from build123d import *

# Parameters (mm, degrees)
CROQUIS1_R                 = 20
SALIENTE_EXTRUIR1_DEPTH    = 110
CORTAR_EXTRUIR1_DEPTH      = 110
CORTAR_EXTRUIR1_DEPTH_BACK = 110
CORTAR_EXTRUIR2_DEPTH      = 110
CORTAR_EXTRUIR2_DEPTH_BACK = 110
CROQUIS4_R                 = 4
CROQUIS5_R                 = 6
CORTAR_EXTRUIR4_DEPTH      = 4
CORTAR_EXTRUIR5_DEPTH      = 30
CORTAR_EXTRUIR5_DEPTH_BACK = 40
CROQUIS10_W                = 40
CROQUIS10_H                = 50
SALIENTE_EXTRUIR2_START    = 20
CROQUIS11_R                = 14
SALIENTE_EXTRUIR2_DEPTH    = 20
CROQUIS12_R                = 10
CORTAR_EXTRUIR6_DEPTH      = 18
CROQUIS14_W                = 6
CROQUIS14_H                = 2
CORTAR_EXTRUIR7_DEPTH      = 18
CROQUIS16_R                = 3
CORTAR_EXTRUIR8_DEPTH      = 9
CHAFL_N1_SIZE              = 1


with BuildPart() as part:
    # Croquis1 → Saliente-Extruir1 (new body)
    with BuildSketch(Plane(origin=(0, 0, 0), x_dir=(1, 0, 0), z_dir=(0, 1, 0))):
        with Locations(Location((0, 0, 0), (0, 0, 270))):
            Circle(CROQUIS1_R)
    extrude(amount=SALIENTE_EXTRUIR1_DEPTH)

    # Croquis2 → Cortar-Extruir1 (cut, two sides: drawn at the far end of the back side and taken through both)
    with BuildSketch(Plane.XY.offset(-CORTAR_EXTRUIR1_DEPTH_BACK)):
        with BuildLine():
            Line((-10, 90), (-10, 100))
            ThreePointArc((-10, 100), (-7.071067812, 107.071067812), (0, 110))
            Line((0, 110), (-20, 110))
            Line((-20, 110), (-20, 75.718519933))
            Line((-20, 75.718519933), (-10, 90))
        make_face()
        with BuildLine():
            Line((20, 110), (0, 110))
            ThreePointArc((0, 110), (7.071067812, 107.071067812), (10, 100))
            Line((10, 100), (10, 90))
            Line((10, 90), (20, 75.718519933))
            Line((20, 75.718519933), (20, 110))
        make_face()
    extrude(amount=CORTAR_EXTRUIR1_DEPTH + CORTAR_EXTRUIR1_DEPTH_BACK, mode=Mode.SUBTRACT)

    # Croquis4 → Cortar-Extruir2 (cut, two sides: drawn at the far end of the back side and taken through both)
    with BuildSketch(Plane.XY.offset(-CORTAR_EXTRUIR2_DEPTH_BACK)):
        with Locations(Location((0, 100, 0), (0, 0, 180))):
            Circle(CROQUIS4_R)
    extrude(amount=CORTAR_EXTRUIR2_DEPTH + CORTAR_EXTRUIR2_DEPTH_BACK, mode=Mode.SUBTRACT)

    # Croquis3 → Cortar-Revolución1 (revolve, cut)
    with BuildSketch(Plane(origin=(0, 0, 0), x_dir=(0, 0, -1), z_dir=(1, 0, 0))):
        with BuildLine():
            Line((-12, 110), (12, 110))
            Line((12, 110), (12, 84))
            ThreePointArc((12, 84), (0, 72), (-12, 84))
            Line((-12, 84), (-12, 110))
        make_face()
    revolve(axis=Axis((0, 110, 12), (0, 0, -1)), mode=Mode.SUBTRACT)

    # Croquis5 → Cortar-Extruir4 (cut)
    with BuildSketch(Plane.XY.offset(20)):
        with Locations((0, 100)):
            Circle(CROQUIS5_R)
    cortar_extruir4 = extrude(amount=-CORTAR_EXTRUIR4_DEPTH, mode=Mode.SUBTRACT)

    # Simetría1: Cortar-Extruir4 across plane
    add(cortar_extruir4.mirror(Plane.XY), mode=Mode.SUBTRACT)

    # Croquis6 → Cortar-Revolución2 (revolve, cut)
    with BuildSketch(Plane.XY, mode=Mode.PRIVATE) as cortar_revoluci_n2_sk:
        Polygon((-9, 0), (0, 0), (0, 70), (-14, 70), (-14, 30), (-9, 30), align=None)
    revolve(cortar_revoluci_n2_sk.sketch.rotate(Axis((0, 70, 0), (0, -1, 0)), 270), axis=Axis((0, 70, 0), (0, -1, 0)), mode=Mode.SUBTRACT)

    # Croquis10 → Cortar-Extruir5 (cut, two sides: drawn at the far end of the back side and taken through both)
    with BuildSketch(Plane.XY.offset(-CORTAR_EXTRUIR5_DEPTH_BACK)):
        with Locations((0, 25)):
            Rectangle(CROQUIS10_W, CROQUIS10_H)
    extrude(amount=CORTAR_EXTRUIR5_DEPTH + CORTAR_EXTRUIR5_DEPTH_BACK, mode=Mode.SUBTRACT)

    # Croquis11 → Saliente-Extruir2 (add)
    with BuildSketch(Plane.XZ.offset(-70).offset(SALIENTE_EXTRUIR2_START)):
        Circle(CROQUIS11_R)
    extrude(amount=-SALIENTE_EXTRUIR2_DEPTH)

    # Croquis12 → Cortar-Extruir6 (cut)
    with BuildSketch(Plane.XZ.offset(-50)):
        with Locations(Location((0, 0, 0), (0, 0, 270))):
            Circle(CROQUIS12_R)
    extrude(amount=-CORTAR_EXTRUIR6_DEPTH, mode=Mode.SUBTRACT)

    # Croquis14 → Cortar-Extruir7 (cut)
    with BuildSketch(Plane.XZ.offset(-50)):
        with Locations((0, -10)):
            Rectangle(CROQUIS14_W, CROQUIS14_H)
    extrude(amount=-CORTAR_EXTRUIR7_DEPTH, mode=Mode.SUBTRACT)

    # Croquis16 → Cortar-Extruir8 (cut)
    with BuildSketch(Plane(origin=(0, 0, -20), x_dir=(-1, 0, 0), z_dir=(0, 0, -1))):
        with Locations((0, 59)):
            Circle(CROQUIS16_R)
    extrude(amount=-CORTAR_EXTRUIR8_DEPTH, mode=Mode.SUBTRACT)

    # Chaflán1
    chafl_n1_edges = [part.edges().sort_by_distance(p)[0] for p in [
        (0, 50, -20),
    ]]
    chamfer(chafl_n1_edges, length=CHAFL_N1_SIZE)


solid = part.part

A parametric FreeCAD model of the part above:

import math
import FreeCAD as App
import Part
import Sketcher
Q = App.Units.Quantity


def edges_at(feature, points):
    """Names of the edges that pass closest to the given points."""
    edges = feature.Shape.Edges
    near = lambda p: min(range(len(edges)), key=lambda i: edges[i].distToShape(Part.Vertex(*p))[0])
    return sorted({f"Edge{near(p) + 1}" for p in points})

doc = App.newDocument("Part")
body = doc.addObject("PartDesign::Body", "Body")

sketch1 = body.newObject("Sketcher::SketchObject", "Sketch")
sketch1.AttachmentSupport = (doc.getObject("XZ_Plane"), [""])
sketch1.MapMode = "FlatFace"
sketch1.addGeometry(Part.Circle(App.Vector(0, 0, 0), App.Vector(0, 0, 1), 20), False)
sketch1.addConstraint(Sketcher.Constraint("Coincident", 0, 3, -1, 1))
sketch1.addConstraint(Sketcher.Constraint("Diameter", 0, Q("40 mm")))
pad1 = body.newObject("PartDesign::Pad", "Pad")
pad1.Profile = sketch1
pad1.Length = 110
pad1.Reversed = True

sketch2 = body.newObject("Sketcher::SketchObject", "Sketch001")
sketch2.AttachmentSupport = (doc.getObject("XY_Plane"), [""])
sketch2.MapMode = "FlatFace"
sketch2.addGeometry(Part.LineSegment(App.Vector(-10, 90, 0), App.Vector(-10, 100, 0)), False)
sketch2.addGeometry(Part.ArcOfCircle(Part.Circle(App.Vector(0, 100, 0), App.Vector(0, 0, 1), 10), math.radians(90), math.radians(180)), False)
sketch2.addGeometry(Part.LineSegment(App.Vector(0, 110, 0), App.Vector(-20, 110, 0)), False)
sketch2.addGeometry(Part.LineSegment(App.Vector(-20, 110, 0), App.Vector(-20, 76, 0)), False)
sketch2.addGeometry(Part.LineSegment(App.Vector(-20, 76, 0), App.Vector(-10, 90, 0)), False)
sketch2.addGeometry(Part.LineSegment(App.Vector(20, 110, 0), App.Vector(0, 110, 0)), False)
sketch2.addGeometry(Part.ArcOfCircle(Part.Circle(App.Vector(0, 100, 0), App.Vector(0, 0, 1), 10), math.radians(0), math.radians(90)), False)
sketch2.addGeometry(Part.LineSegment(App.Vector(10, 100, 0), App.Vector(10, 90, 0)), False)
sketch2.addGeometry(Part.LineSegment(App.Vector(10, 90, 0), App.Vector(20, 76, 0)), False)
sketch2.addGeometry(Part.LineSegment(App.Vector(20, 76, 0), App.Vector(20, 110, 0)), False)
sketch2.addConstraint(Sketcher.Constraint("Tangent", 0, 2, 1, 2))
sketch2.addConstraint(Sketcher.Constraint("Tangent", 1, 1, 2, 1))
sketch2.addConstraint(Sketcher.Constraint("Coincident", 2, 2, 3, 1))
sketch2.addConstraint(Sketcher.Constraint("Coincident", 3, 2, 4, 1))
sketch2.addConstraint(Sketcher.Constraint("Coincident", 4, 2, 0, 1))
sketch2.addConstraint(Sketcher.Constraint("Tangent", 5, 2, 6, 2))
sketch2.addConstraint(Sketcher.Constraint("Tangent", 6, 1, 7, 1))
sketch2.addConstraint(Sketcher.Constraint("Coincident", 7, 2, 8, 1))
sketch2.addConstraint(Sketcher.Constraint("Coincident", 8, 2, 9, 1))
sketch2.addConstraint(Sketcher.Constraint("Coincident", 9, 2, 5, 1))
sketch2.addConstraint(Sketcher.Constraint("Vertical", 0))
sketch2.addConstraint(Sketcher.Constraint("Horizontal", 2))
sketch2.addConstraint(Sketcher.Constraint("Vertical", 3))
sketch2.addConstraint(Sketcher.Constraint("Horizontal", 5))
sketch2.addConstraint(Sketcher.Constraint("Vertical", 7))
sketch2.addConstraint(Sketcher.Constraint("Vertical", 9))
sketch2.addConstraint(Sketcher.Constraint("Coincident", 6, 3, 1, 3))
sketch2.addConstraint(Sketcher.Constraint("Equal", 1, 6))
sketch2.addConstraint(Sketcher.Constraint("Symmetric", 4, 2, 7, 2, -2))
sketch2.addConstraint(Sketcher.Constraint("Symmetric", 3, 2, 8, 2, -2))
sketch2.addConstraint(Sketcher.Constraint("Radius", 1, Q("10 mm")))
sketch2.addConstraint(Sketcher.Constraint("DistanceX", 2, 2, 2, 1, Q("20 mm")))
sketch2.addConstraint(Sketcher.Constraint("DistanceY", 0, 1, 0, 2, Q("10 mm")))
sketch2.addConstraint(Sketcher.Constraint("Angle", 4, Q("55 deg")))
sketch2.addConstraint(Sketcher.Constraint("DistanceY", -1, 1, 1, 3, Q("100 mm")))
pocket1 = body.newObject("PartDesign::Pocket", "Pocket")
pocket1.Profile = sketch2
pocket1.Type = "ThroughAll"
pocket1.Midplane = True

sketch3 = body.newObject("Sketcher::SketchObject", "Sketch002")
sketch3.AttachmentSupport = (doc.getObject("XY_Plane"), [""])
sketch3.MapMode = "FlatFace"
sketch3.addGeometry(Part.Circle(App.Vector(0, 100, 0), App.Vector(0, 0, 1), 4), False)
sketch3.addConstraint(Sketcher.Constraint("PointOnObject", 0, 3, -2))
sketch3.addConstraint(Sketcher.Constraint("Diameter", 0, Q("8 mm")))
sketch3.addConstraint(Sketcher.Constraint("DistanceY", -1, 1, 0, 3, Q("100 mm")))
pocket2 = body.newObject("PartDesign::Pocket", "Pocket001")
pocket2.Profile = sketch3
pocket2.Type = "ThroughAll"
pocket2.Midplane = True

sketch4 = body.newObject("Sketcher::SketchObject", "Sketch003")
sketch4.AttachmentSupport = (doc.getObject("YZ_Plane"), [""])
sketch4.MapMode = "FlatFace"
sketch4.addGeometry(Part.LineSegment(App.Vector(110, -12, 0), App.Vector(110, 12, 0)), False)
sketch4.addGeometry(Part.LineSegment(App.Vector(110, 12, 0), App.Vector(84, 12, 0)), False)
sketch4.addGeometry(Part.ArcOfCircle(Part.Circle(App.Vector(84, 0, 0), App.Vector(0, 0, 1), 12), math.radians(90), math.radians(270)), False)
sketch4.addGeometry(Part.LineSegment(App.Vector(84, -12, 0), App.Vector(110, -12, 0)), False)
sketch4.addGeometry(Part.LineSegment(App.Vector(110, 12, 0), App.Vector(110, -12, 0)), True)
sketch4.addConstraint(Sketcher.Constraint("Coincident", 0, 2, 1, 1))
sketch4.addConstraint(Sketcher.Constraint("Tangent", 1, 2, 2, 1))
sketch4.addConstraint(Sketcher.Constraint("Tangent", 2, 2, 3, 1))
sketch4.addConstraint(Sketcher.Constraint("Coincident", 3, 2, 0, 1))
sketch4.addConstraint(Sketcher.Constraint("Vertical", 0))
sketch4.addConstraint(Sketcher.Constraint("Horizontal", 1))
sketch4.addConstraint(Sketcher.Constraint("Horizontal", 3))
sketch4.addConstraint(Sketcher.Constraint("Vertical", 4))
sketch4.addConstraint(Sketcher.Constraint("Coincident", 4, 1, 0, 2))
sketch4.addConstraint(Sketcher.Constraint("PointOnObject", 2, 3, -1))
sketch4.addConstraint(Sketcher.Constraint("Horizontal", 2, 2, 4, 2))
sketch4.addConstraint(Sketcher.Constraint("Radius", 2, Q("12 mm")))
sketch4.addConstraint(Sketcher.Constraint("DistanceX", 1, 2, 1, 1, Q("26 mm")))
sketch4.addConstraint(Sketcher.Constraint("DistanceX", -1, 1, 2, 3, Q("84 mm")))
groove = body.newObject("PartDesign::Groove", "Groove")
groove.Profile = sketch4
groove.ReferenceAxis = (sketch4, ["Axis0"])
groove.Angle = 360

sketch5 = body.newObject("Sketcher::SketchObject", "Sketch004")
sketch5.AttachmentSupport = (doc.getObject("XY_Plane"), [""])
sketch5.MapMode = "FlatFace"
sketch5.AttachmentOffset = App.Placement(App.Vector(0, 0, 20), App.Rotation())
sketch5.addGeometry(Part.Circle(App.Vector(0, 100, 0), App.Vector(0, 0, 1), 6), False)
sketch5.addConstraint(Sketcher.Constraint("PointOnObject", 0, 3, -2))
sketch5.addConstraint(Sketcher.Constraint("Diameter", 0, Q("12 mm")))
sketch5.addConstraint(Sketcher.Constraint("DistanceY", -1, 1, 0, 3, Q("100 mm")))
pocket3 = body.newObject("PartDesign::Pocket", "Pocket002")
pocket3.Profile = sketch5
pocket3.Length = 4
doc.recompute()

mirrored = body.newObject("PartDesign::Mirrored", "Mirrored")
mirrored.Originals = [pocket3]
mirrored.MirrorPlane = (doc.getObject("XY_Plane"), [""])
body.Tip = mirrored

sketch6 = body.newObject("Sketcher::SketchObject", "Sketch005")
sketch6.AttachmentSupport = (doc.getObject("XY_Plane"), [""])
sketch6.MapMode = "FlatFace"
sketch6.addGeometry(Part.LineSegment(App.Vector(-9, 0, 0), App.Vector(0, 0, 0)), False)
sketch6.addGeometry(Part.LineSegment(App.Vector(0, 0, 0), App.Vector(0, 70, 0)), False)
sketch6.addGeometry(Part.LineSegment(App.Vector(0, 70, 0), App.Vector(-14, 70, 0)), False)
sketch6.addGeometry(Part.LineSegment(App.Vector(-14, 70, 0), App.Vector(-14, 30, 0)), False)
sketch6.addGeometry(Part.LineSegment(App.Vector(-14, 30, 0), App.Vector(-9, 30, 0)), False)
sketch6.addGeometry(Part.LineSegment(App.Vector(-9, 30, 0), App.Vector(-9, 0, 0)), False)
sketch6.addConstraint(Sketcher.Constraint("Coincident", 0, 2, 1, 1))
sketch6.addConstraint(Sketcher.Constraint("Coincident", 1, 2, 2, 1))
sketch6.addConstraint(Sketcher.Constraint("Coincident", 2, 2, 3, 1))
sketch6.addConstraint(Sketcher.Constraint("Coincident", 3, 2, 4, 1))
sketch6.addConstraint(Sketcher.Constraint("Coincident", 4, 2, 5, 1))
sketch6.addConstraint(Sketcher.Constraint("Coincident", 5, 2, 0, 1))
sketch6.addConstraint(Sketcher.Constraint("Horizontal", 0))
sketch6.addConstraint(Sketcher.Constraint("Vertical", 1))
sketch6.addConstraint(Sketcher.Constraint("Horizontal", 2))
sketch6.addConstraint(Sketcher.Constraint("Vertical", 3))
sketch6.addConstraint(Sketcher.Constraint("Horizontal", 4))
sketch6.addConstraint(Sketcher.Constraint("Vertical", 5))
sketch6.addConstraint(Sketcher.Constraint("Coincident", 0, 2, -1, 1))
sketch6.addConstraint(Sketcher.Constraint("DistanceX", 0, 1, 0, 2, Q("9 mm")))
sketch6.addConstraint(Sketcher.Constraint("DistanceX", 2, 2, 2, 1, Q("14 mm")))
sketch6.addConstraint(Sketcher.Constraint("DistanceY", 1, 1, 1, 2, Q("70 mm")))
sketch6.addConstraint(Sketcher.Constraint("DistanceY", 3, 2, 3, 1, Q("40 mm")))
groove2 = body.newObject("PartDesign::Groove", "Groove001")
groove2.Profile = sketch6
groove2.ReferenceAxis = (sketch6, ["V_Axis"])
groove2.Angle = 360

sketch7 = body.newObject("Sketcher::SketchObject", "Sketch006")
sketch7.AttachmentSupport = (doc.getObject("XY_Plane"), [""])
sketch7.MapMode = "FlatFace"
sketch7.addGeometry(Part.LineSegment(App.Vector(-20, 50, 0), App.Vector(-20, 0, 0)), False)
sketch7.addGeometry(Part.LineSegment(App.Vector(-20, 0, 0), App.Vector(20, 0, 0)), False)
sketch7.addGeometry(Part.LineSegment(App.Vector(20, 0, 0), App.Vector(20, 50, 0)), False)
sketch7.addGeometry(Part.LineSegment(App.Vector(20, 50, 0), App.Vector(-20, 50, 0)), False)
sketch7.addConstraint(Sketcher.Constraint("Coincident", 0, 2, 1, 1))
sketch7.addConstraint(Sketcher.Constraint("Coincident", 1, 2, 2, 1))
sketch7.addConstraint(Sketcher.Constraint("Coincident", 2, 2, 3, 1))
sketch7.addConstraint(Sketcher.Constraint("Coincident", 3, 2, 0, 1))
sketch7.addConstraint(Sketcher.Constraint("Vertical", 0))
sketch7.addConstraint(Sketcher.Constraint("Horizontal", 1))
sketch7.addConstraint(Sketcher.Constraint("Vertical", 2))
sketch7.addConstraint(Sketcher.Constraint("Horizontal", 3))
sketch7.addConstraint(Sketcher.Constraint("Symmetric", 0, 2, 1, 2, -1, 1))
sketch7.addConstraint(Sketcher.Constraint("DistanceX", 1, 1, 1, 2, Q("40 mm")))
sketch7.addConstraint(Sketcher.Constraint("DistanceY", 0, 2, 0, 1, Q("50 mm")))
pocket4 = body.newObject("PartDesign::Pocket", "Pocket003")
pocket4.Profile = sketch7
pocket4.Type = "ThroughAll"
pocket4.Midplane = True

sketch8 = body.newObject("Sketcher::SketchObject", "Sketch007")
sketch8.AttachmentSupport = (doc.getObject("XZ_Plane"), [""])
sketch8.MapMode = "FlatFace"
sketch8.AttachmentOffset = App.Placement(App.Vector(0, 0, -50), App.Rotation())
sketch8.addGeometry(Part.Circle(App.Vector(0, 0, 0), App.Vector(0, 0, 1), 14), False)
sketch8.addConstraint(Sketcher.Constraint("Coincident", 0, 3, -1, 1))
sketch8.addConstraint(Sketcher.Constraint("Diameter", 0, Q("28 mm")))
pad2 = body.newObject("PartDesign::Pad", "Pad001")
pad2.Profile = sketch8
pad2.Length = 20
pad2.Reversed = True

sketch9 = body.newObject("Sketcher::SketchObject", "Sketch008")
sketch9.AttachmentSupport = (doc.getObject("XZ_Plane"), [""])
sketch9.MapMode = "FlatFace"
sketch9.AttachmentOffset = App.Placement(App.Vector(0, 0, -50), App.Rotation())
sketch9.addGeometry(Part.Circle(App.Vector(0, 0, 0), App.Vector(0, 0, 1), 10), False)
sketch9.addConstraint(Sketcher.Constraint("Coincident", 0, 3, -1, 1))
sketch9.addConstraint(Sketcher.Constraint("Diameter", 0, Q("20 mm")))
pocket5 = body.newObject("PartDesign::Pocket", "Pocket004")
pocket5.Profile = sketch9
pocket5.Length = 18

sketch10 = body.newObject("Sketcher::SketchObject", "Sketch009")
sketch10.AttachmentSupport = (doc.getObject("XZ_Plane"), [""])
sketch10.MapMode = "FlatFace"
sketch10.AttachmentOffset = App.Placement(App.Vector(0, 0, -50), App.Rotation())
sketch10.addGeometry(Part.LineSegment(App.Vector(-3, -9, 0), App.Vector(-3, -11, 0)), False)
sketch10.addGeometry(Part.LineSegment(App.Vector(-3, -11, 0), App.Vector(3, -11, 0)), False)
sketch10.addGeometry(Part.LineSegment(App.Vector(3, -11, 0), App.Vector(3, -9, 0)), False)
sketch10.addGeometry(Part.LineSegment(App.Vector(3, -9, 0), App.Vector(-3, -9, 0)), False)
sketch10.addConstraint(Sketcher.Constraint("Coincident", 0, 2, 1, 1))
sketch10.addConstraint(Sketcher.Constraint("Coincident", 1, 2, 2, 1))
sketch10.addConstraint(Sketcher.Constraint("Coincident", 2, 2, 3, 1))
sketch10.addConstraint(Sketcher.Constraint("Coincident", 3, 2, 0, 1))
sketch10.addConstraint(Sketcher.Constraint("Vertical", 0))
sketch10.addConstraint(Sketcher.Constraint("Horizontal", 1))
sketch10.addConstraint(Sketcher.Constraint("Vertical", 2))
sketch10.addConstraint(Sketcher.Constraint("Horizontal", 3))
sketch10.addConstraint(Sketcher.Constraint("DistanceX", 1, 1, 1, 2, Q("6 mm")))
sketch10.addConstraint(Sketcher.Constraint("DistanceY", 0, 2, 0, 1, Q("2 mm")))
sketch10.addConstraint(Sketcher.Constraint("DistanceX", 0, 2, -1, 1, Q("3 mm")))
sketch10.addConstraint(Sketcher.Constraint("DistanceY", 0, 2, -1, 1, Q("11 mm")))
pocket6 = body.newObject("PartDesign::Pocket", "Pocket005")
pocket6.Profile = sketch10
pocket6.Length = 18

sketch11 = body.newObject("Sketcher::SketchObject", "Sketch010")
sketch11.AttachmentSupport = (doc.getObject("XY_Plane"), [""])
sketch11.MapMode = "FlatFace"
sketch11.AttachmentOffset = App.Placement(App.Vector(0, 0, -20), App.Rotation())
sketch11.addGeometry(Part.Circle(App.Vector(0, 59, 0), App.Vector(0, 0, 1), 3), False)
sketch11.addConstraint(Sketcher.Constraint("PointOnObject", 0, 3, -2))
sketch11.addConstraint(Sketcher.Constraint("Diameter", 0, Q("6 mm")))
sketch11.addConstraint(Sketcher.Constraint("DistanceY", -1, 1, 0, 3, Q("59 mm")))
pocket7 = body.newObject("PartDesign::Pocket", "Pocket006")
pocket7.Profile = sketch11
pocket7.Length = 9
pocket7.Reversed = True
doc.recompute()

chamfer = body.newObject("PartDesign::Chamfer", "Chamfer")
chamfer.Base = (pocket7, edges_at(pocket7, [(0, 50, -20)]))
chamfer.Size = 1

doc.recompute()
